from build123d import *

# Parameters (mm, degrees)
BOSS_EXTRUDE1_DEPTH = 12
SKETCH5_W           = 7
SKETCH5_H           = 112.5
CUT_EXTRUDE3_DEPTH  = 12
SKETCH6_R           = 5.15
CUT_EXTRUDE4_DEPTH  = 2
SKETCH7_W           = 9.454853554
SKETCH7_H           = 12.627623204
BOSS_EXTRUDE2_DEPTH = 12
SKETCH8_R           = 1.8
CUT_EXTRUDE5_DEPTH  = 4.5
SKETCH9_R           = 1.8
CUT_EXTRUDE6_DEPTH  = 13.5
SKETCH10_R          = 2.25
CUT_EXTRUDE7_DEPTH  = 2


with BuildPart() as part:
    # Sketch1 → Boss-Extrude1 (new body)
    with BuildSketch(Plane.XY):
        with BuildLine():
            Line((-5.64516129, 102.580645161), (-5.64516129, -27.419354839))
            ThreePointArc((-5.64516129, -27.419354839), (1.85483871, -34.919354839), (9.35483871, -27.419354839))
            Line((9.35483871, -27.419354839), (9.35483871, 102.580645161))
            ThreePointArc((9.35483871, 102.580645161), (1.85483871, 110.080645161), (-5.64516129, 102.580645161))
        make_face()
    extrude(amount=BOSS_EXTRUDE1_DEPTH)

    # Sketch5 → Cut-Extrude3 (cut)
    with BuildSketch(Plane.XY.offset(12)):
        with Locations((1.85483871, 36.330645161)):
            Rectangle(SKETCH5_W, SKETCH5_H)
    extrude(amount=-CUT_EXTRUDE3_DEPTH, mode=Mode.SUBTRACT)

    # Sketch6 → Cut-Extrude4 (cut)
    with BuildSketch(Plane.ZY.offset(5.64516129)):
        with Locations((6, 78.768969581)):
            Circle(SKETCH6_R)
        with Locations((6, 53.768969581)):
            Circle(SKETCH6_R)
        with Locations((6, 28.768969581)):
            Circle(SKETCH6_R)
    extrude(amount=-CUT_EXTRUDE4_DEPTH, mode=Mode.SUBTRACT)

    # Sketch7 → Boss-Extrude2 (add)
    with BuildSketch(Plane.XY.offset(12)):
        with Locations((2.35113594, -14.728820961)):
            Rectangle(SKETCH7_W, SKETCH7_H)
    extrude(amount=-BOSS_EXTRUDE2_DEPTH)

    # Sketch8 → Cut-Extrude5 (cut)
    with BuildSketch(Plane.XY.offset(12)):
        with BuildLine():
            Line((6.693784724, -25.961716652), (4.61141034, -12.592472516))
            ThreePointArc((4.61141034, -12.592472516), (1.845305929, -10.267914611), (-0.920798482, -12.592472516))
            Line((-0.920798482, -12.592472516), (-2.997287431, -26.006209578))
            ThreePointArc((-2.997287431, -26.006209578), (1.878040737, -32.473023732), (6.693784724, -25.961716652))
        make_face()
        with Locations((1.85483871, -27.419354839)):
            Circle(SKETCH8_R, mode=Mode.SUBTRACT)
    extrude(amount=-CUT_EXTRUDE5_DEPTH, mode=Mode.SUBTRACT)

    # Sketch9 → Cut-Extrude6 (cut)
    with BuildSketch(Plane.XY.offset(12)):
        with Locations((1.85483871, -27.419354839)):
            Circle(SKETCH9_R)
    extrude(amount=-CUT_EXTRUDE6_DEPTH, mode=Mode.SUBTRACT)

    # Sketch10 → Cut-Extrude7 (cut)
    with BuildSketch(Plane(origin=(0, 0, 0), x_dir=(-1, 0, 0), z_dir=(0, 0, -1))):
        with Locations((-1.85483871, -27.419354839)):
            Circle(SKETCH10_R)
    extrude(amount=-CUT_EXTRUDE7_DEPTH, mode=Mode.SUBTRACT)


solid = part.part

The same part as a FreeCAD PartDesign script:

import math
import FreeCAD as App
import Part
import Sketcher

V = App.Vector

doc = App.newDocument("Part")
body = doc.addObject("PartDesign::Body", "Body")

# Sketch on XY plane
sketch1 = doc.addObject("Sketcher::SketchObject", "Sketch")
body.addObject(sketch1)
sketch1.AttachmentSupport = (doc.XY_Plane, [""])
sketch1.MapMode = "FlatFace"
sketch1.addGeometry(Part.LineSegment(V(-6, 103, 0), V(-6, -27, 0)), False)
sketch1.addGeometry(Part.ArcOfCircle(Part.Circle(V(2, -27, 0), V(0, 0, 1), 8), math.radians(180), math.radians(360)), False)
sketch1.addGeometry(Part.LineSegment(V(9, -27, 0), V(9, 103, 0)), False)
sketch1.addGeometry(Part.ArcOfCircle(Part.Circle(V(2, 103, 0), V(0, 0, 1), 8), math.radians(0), math.radians(180)), False)
sketch1.addConstraint(Sketcher.Constraint("Tangent", 0, 2, 1, 1))
sketch1.addConstraint(Sketcher.Constraint("Tangent", 1, 2, 2, 1))
sketch1.addConstraint(Sketcher.Constraint("Tangent", 2, 2, 3, 1))
sketch1.addConstraint(Sketcher.Constraint("Tangent", 3, 2, 0, 1))
sketch1.addConstraint(Sketcher.Constraint("Vertical", 0))
sketch1.addConstraint(Sketcher.Constraint("Vertical", 2))
sketch1.addConstraint(Sketcher.Constraint("Radius", 1, 7.5))
sketch1.addConstraint(Sketcher.Constraint("DistanceY", 0, 2, 0, 1, 130.0))
sketch1.addConstraint(Sketcher.Constraint("DistanceX", -1, 1, 1, 3, 1.854839))
sketch1.addConstraint(Sketcher.Constraint("DistanceY", 1, 3, -1, 1, 27.419355))
pad1 = doc.addObject("PartDesign::Pad", "Pad")
body.addObject(pad1)
pad1.Profile = sketch1
pad1.Length = 12

# Sketch on XY plane
sketch2 = doc.addObject("Sketcher::SketchObject", "Sketch001")
body.addObject(sketch2)
sketch2.AttachmentSupport = (doc.XY_Plane, [""])
sketch2.MapMode = "FlatFace"
sketch2.AttachmentOffset = App.Placement(V(0, 0, 12), App.Rotation())
sketch2.addGeometry(Part.LineSegment(V(-2, 93, 0), V(-2, -20, 0)), False)
sketch2.addGeometry(Part.LineSegment(V(-2, -20, 0), V(5, -20, 0)), False)
sketch2.addGeometry(Part.LineSegment(V(5, -20, 0), V(5, 93, 0)), False)
sketch2.addGeometry(Part.LineSegment(V(5, 93, 0), V(-2, 93, 0)), False)
sketch2.addConstraint(Sketcher.Constraint("Coincident", 0, 2, 1, 1))
sketch2.addConstraint(Sketcher.Constraint("Coincident", 1, 2, 2, 1))
sketch2.addConstraint(Sketcher.Constraint("Coincident", 2, 2, 3, 1))
sketch2.addConstraint(Sketcher.Constraint("Coincident", 3, 2, 0, 1))
sketch2.addConstraint(Sketcher.Constraint("Vertical", 0))
sketch2.addConstraint(Sketcher.Constraint("Horizontal", 1))
sketch2.addConstraint(Sketcher.Constraint("Vertical", 2))
sketch2.addConstraint(Sketcher.Constraint("Horizontal", 3))
sketch2.addConstraint(Sketcher.Constraint("DistanceX", 1, 1, 1, 2, 7.0))
sketch2.addConstraint(Sketcher.Constraint("DistanceY", 0, 2, 0, 1, 112.5))
sketch2.addConstraint(Sketcher.Constraint("DistanceX", 0, 2, -1, 1, 1.645161))
sketch2.addConstraint(Sketcher.Constraint("DistanceY", 0, 2, -1, 1, 19.919355))
pocket1 = doc.addObject("PartDesign::Pocket", "Pocket")
body.addObject(pocket1)
pocket1.Profile = sketch2
pocket1.Length = 12

# Sketch on YZ plane
sketch3 = doc.addObject("Sketcher::SketchObject", "Sketch002")
body.addObject(sketch3)
sketch3.AttachmentSupport = (doc.YZ_Plane, [""])
sketch3.MapMode = "FlatFace"
sketch3.AttachmentOffset = App.Placement(V(0, 0, -5.645161), App.Rotation())
sketch3.addGeometry(Part.Circle(V(79, 6, 0), V(0, 0, 1), 5), False)
sketch3.addGeometry(Part.Circle(V(54, 6, 0), V(0, 0, 1), 5), False)
sketch3.addGeometry(Part.Circle(V(29, 6, 0), V(0, 0, 1), 5), False)
sketch3.addConstraint(Sketcher.Constraint("Equal", 0, 1))
sketch3.addConstraint(Sketcher.Constraint("Equal", 1, 2))
sketch3.addConstraint(Sketcher.Constraint("Horizontal", 0, 3, 1, 3))
sketch3.addConstraint(Sketcher.Constraint("Horizontal", 1, 3, 2, 3))
sketch3.addConstraint(Sketcher.Constraint("Diameter", 0, 10.3))
sketch3.addConstraint(Sketcher.Constraint("DistanceY", -1, 1, 0, 3, 6.0))
sketch3.addConstraint(Sketcher.Constraint("DistanceX", 1, 3, 0, 3, 25.0))
sketch3.addConstraint(Sketcher.Constraint("DistanceX", 2, 3, 1, 3, 25.0))
sketch3.addConstraint(Sketcher.Constraint("DistanceX", -1, 1, 0, 3, 78.76897))
pocket2 = doc.addObject("PartDesign::Pocket", "Pocket001")
body.addObject(pocket2)
pocket2.Profile = sketch3
pocket2.Length = 2
pocket2.Reversed = True

# Sketch on XY plane
sketch4 = doc.addObject("Sketcher::SketchObject", "Sketch003")
body.addObject(sketch4)
sketch4.AttachmentSupport = (doc.XY_Plane, [""])
sketch4.MapMode = "FlatFace"
sketch4.AttachmentOffset = App.Placement(V(0, 0, 12), App.Rotation())
sketch4.addGeometry(Part.LineSegment(V(-2, -8, 0), V(-2, -21, 0)), False)
sketch4.addGeometry(Part.LineSegment(V(-2, -21, 0), V(7, -21, 0)), False)
sketch4.addGeometry(Part.LineSegment(V(7, -21, 0), V(7, -8, 0)), False)
sketch4.addGeometry(Part.LineSegment(V(7, -8, 0), V(-2, -8, 0)), False)
sketch4.addConstraint(Sketcher.Constraint("Coincident", 0, 2, 1, 1))
sketch4.addConstraint(Sketcher.Constraint("Coincident", 1, 2, 2, 1))
sketch4.addConstraint(Sketcher.Constraint("Coincident", 2, 2, 3, 1))
sketch4.addConstraint(Sketcher.Constraint("Coincident", 3, 2, 0, 1))
sketch4.addConstraint(Sketcher.Constraint("Vertical", 0))
sketch4.addConstraint(Sketcher.Constraint("Horizontal", 1))
sketch4.addConstraint(Sketcher.Constraint("Vertical", 2))
sketch4.addConstraint(Sketcher.Constraint("Horizontal", 3))
sketch4.addConstraint(Sketcher.Constraint("DistanceX", 1, 1, 1, 2, 9.454854))
sketch4.addConstraint(Sketcher.Constraint("DistanceY", 0, 2, 0, 1, 12.627623))
sketch4.addConstraint(Sketcher.Constraint("DistanceX", 0, 2, -1, 1, 2.376291))
sketch4.addConstraint(Sketcher.Constraint("DistanceY", 2, 2, -1, 1, 8.415009))
pad2 = doc.addObject("PartDesign::Pad", "Pad001")
body.addObject(pad2)
pad2.Profile = sketch4
pad2.Length = 12
pad2.Reversed = True

# Sketch on XY plane
sketch5 = doc.addObject("Sketcher::SketchObject", "Sketch004")
body.addObject(sketch5)
sketch5.AttachmentSupport = (doc.XY_Plane, [""])
sketch5.MapMode = "FlatFace"
sketch5.AttachmentOffset = App.Placement(V(0, 0, 12), App.Rotation())
sketch5.addGeometry(Part.LineSegment(V(6.7, -26, 0), V(4.6, -12.6, 0)), False)
sketch5.addGeometry(Part.ArcOfCircle(Part.Circle(V(1.8, -13.1, 0), V(0, 0, 1), 2.8), math.radians(10), math.radians(170)), False)
sketch5.addGeometry(Part.LineSegment(V(-0.9, -12.6, 0), V(-3, -26, 0)), False)
sketch5.addGeometry(Part.ArcOfCircle(Part.Circle(V(1.9, -27.4, 0), V(0, 0, 1), 5.1), math.radians(164), math.radians(377)), False)
sketch5.addGeometry(Part.Circle(V(1.9, -27.4, 0), V(0, 0, 1), 1.8), False)
sketch5.addConstraint(Sketcher.Constraint("Coincident", 0, 2, 1, 1))
sketch5.addConstraint(Sketcher.Constraint("Coincident", 1, 2, 2, 1))
sketch5.addConstraint(Sketcher.Constraint("Coincident", 2, 2, 3, 1))
sketch5.addConstraint(Sketcher.Constraint("Coincident", 3, 2, 0, 1))
sketch5.addConstraint(Sketcher.Constraint("Coincident", 4, 3, 3, 3))
sketch5.addConstraint(Sketcher.Constraint("Horizontal", 0, 2, 1, 2))
sketch5.addConstraint(Sketcher.Constraint("Diameter", 4, 3.6))
sketch5.addConstraint(Sketcher.Constraint("Radius", 1, 2.80804))
sketch5.addConstraint(Sketcher.Constraint("Radius", 3, 5.053722))
sketch5.addConstraint(Sketcher.Constraint("DistanceX", 1, 2, -1, 1, 0.920798))
sketch5.addConstraint(Sketcher.Constraint("DistanceY", 3, 3, 1, 3, 14.3434))
sketch5.addConstraint(Sketcher.Constraint("Distance", 2, 13.573509))
sketch5.addConstraint(Sketcher.Constraint("DistanceX", -1, 1, 3, 3, 1.854839))
sketch5.addConstraint(Sketcher.Constraint("DistanceX", -1, 1, 0, 2, 4.61141))
sketch5.addConstraint(Sketcher.Constraint("DistanceY", 2, 2, -1, 1, 26.00621))
sketch5.addConstraint(Sketcher.Constraint("DistanceY", 3, 3, 3, 2, 1.457638))
pocket3 = doc.addObject("PartDesign::Pocket", "Pocket002")
body.addObject(pocket3)
pocket3.Profile = sketch5
pocket3.Length = 4.5

# Sketch on XY plane
sketch6 = doc.addObject("Sketcher::SketchObject", "Sketch005")
body.addObject(sketch6)
sketch6.AttachmentSupport = (doc.XY_Plane, [""])
sketch6.MapMode = "FlatFace"
sketch6.AttachmentOffset = App.Placement(V(0, 0, 12), App.Rotation())
sketch6.addGeometry(Part.Circle(V(1.9, -27.4, 0), V(0, 0, 1), 1.8), False)
sketch6.addConstraint(Sketcher.Constraint("Diameter", 0, 3.6))
sketch6.addConstraint(Sketcher.Constraint("DistanceX", -1, 1, 0, 3, 1.854839))
sketch6.addConstraint(Sketcher.Constraint("DistanceY", 0, 3, -1, 1, 27.419355))
pocket4 = doc.addObject("PartDesign::Pocket", "Pocket003")
body.addObject(pocket4)
pocket4.Profile = sketch6
pocket4.Length = 13.5

# Sketch on XY plane
sketch7 = doc.addObject("Sketcher::SketchObject", "Sketch006")
body.addObject(sketch7)
sketch7.AttachmentSupport = (doc.XY_Plane, [""])
sketch7.MapMode = "FlatFace"
sketch7.addGeometry(Part.Circle(V(1.9, -27.4, 0), V(0, 0, 1), 2.2), False)
sketch7.addConstraint(Sketcher.Constraint("Diameter", 0, 4.5))
sketch7.addConstraint(Sketcher.Constraint("DistanceX", -1, 1, 0, 3, 1.854839))
sketch7.addConstraint(Sketcher.Constraint("DistanceY", 0, 3, -1, 1, 27.419355))
pocket5 = doc.addObject("PartDesign::Pocket", "Pocket004")
body.addObject(pocket5)
pocket5.Profile = sketch7
pocket5.Length = 2
pocket5.Reversed = True

doc.recompute()
